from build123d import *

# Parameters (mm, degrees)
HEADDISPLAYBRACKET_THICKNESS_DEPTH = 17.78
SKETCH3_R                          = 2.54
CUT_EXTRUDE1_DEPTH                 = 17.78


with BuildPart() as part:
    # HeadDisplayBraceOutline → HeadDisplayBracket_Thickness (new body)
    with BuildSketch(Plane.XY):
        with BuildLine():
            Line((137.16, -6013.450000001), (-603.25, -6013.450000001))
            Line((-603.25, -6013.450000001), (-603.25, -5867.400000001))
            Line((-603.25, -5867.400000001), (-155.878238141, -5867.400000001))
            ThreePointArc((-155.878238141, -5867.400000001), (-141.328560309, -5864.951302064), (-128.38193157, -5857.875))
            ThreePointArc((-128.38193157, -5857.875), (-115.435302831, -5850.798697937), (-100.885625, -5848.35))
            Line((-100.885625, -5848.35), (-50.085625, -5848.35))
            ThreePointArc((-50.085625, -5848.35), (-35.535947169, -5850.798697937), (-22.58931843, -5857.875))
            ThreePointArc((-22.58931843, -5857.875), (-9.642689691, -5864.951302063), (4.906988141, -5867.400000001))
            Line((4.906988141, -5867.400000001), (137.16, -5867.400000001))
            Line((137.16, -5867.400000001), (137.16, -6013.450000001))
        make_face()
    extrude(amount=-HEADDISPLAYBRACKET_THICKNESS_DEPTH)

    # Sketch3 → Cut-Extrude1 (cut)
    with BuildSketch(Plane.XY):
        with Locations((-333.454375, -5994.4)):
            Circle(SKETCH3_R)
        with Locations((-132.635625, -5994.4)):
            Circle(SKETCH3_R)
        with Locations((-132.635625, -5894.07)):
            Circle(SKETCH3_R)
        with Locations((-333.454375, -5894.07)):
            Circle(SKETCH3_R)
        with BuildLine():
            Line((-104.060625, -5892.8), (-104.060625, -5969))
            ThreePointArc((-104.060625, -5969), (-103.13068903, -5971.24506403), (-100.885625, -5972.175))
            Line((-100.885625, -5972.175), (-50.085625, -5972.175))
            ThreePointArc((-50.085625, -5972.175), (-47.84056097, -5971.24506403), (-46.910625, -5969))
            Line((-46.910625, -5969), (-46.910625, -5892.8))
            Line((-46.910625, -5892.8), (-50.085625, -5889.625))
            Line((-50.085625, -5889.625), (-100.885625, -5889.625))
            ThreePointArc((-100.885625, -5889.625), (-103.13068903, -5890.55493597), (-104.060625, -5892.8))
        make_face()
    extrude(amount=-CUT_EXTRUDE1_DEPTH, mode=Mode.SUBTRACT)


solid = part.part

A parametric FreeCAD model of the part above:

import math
import FreeCAD as App
import Part
import Sketcher
Q = App.Units.Quantity

doc = App.newDocument("Part")
body = doc.addObject("PartDesign::Body", "Body")

# Sketch on XY plane
sketch1 = doc.addObject("Sketcher::SketchObject", "Sketch")
body.addObject(sketch1)
sketch1.AttachmentSupport = (doc.XY_Plane, [""])
sketch1.MapMode = "FlatFace"
sketch1.addGeometry([
    Part.LineSegment(App.Vector(-603, -6013, 0), App.Vector(137, -6013, 0)),  # 0
    Part.LineSegment(App.Vector(137, -6013, 0), App.Vector(137, -5867, 0)),  # 1
    Part.LineSegment(App.Vector(137, -5867, 0), App.Vector(5, -5867, 0)),  # 2
    Part.ArcOfCircle(Part.Circle(App.Vector(5, -5823, 0), App.Vector(0, 0, 1), 44), math.radians(-128), math.radians(-90)),  # 3
    Part.ArcOfCircle(Part.Circle(App.Vector(-50, -5893, 0), App.Vector(0, 0, 1), 44), math.radians(52), math.radians(90)),  # 4
    Part.LineSegment(App.Vector(-50, -5848, 0), App.Vector(-101, -5848, 0)),  # 5
    Part.ArcOfCircle(Part.Circle(App.Vector(-101, -5893, 0), App.Vector(0, 0, 1), 44), math.radians(90), math.radians(128)),  # 6
    Part.ArcOfCircle(Part.Circle(App.Vector(-156, -5823, 0), App.Vector(0, 0, 1), 44), math.radians(-90), math.radians(-52)),  # 7
    Part.LineSegment(App.Vector(-156, -5867, 0), App.Vector(-603, -5867, 0)),  # 8
    Part.LineSegment(App.Vector(-603, -5867, 0), App.Vector(-603, -6013, 0)),  # 9
], False)
sketch1.addConstraint([
    Sketcher.Constraint("Coincident", 0, 2, 1, 1),
    Sketcher.Constraint("Coincident", 1, 2, 2, 1),
    Sketcher.Constraint("Tangent", 2, 2, 3, 2),
    Sketcher.Constraint("Tangent", 3, 1, 4, 1),
    Sketcher.Constraint("Tangent", 4, 2, 5, 1),
    Sketcher.Constraint("Tangent", 5, 2, 6, 1),
    Sketcher.Constraint("Tangent", 6, 2, 7, 2),
    Sketcher.Constraint("Tangent", 7, 1, 8, 1),
    Sketcher.Constraint("Coincident", 8, 2, 9, 1),
    Sketcher.Constraint("Coincident", 9, 2, 0, 1),
    Sketcher.Constraint("Horizontal", 0),
    Sketcher.Constraint("Vertical", 1),
    Sketcher.Constraint("Horizontal", 2),
    Sketcher.Constraint("Horizontal", 5),
    Sketcher.Constraint("Horizontal", 8),
    Sketcher.Constraint("Vertical", 9),
    Sketcher.Constraint("Equal", 3, 4),
    Sketcher.Constraint("Equal", 4, 6),
    Sketcher.Constraint("Equal", 6, 7),
    Sketcher.Constraint("Horizontal", 3, 3, 7, 3),
    Sketcher.Constraint("DistanceX", 5, 2, 5, 1, Q("2 in")),
    Sketcher.Constraint("Radius", 3, Q("1.75 in")),
    Sketcher.Constraint("DistanceY", 4, 3, -1, 1, Q("232 in")),
    Sketcher.Constraint("DistanceY", 1, 2, -1, 1, Q("231 in")),
    Sketcher.Constraint("DistanceX", 0, 1, 0, 2, Q("29.15 in")),
    Sketcher.Constraint("DistanceY", 1, 1, 1, 2, Q("5.75 in")),
    Sketcher.Constraint("DistanceX", -1, 1, 0, 2, Q("5.4 in")),
    Sketcher.Constraint("DistanceX", 2, 2, 2, 1, Q("132.253012 mm")),
])
pad1 = doc.addObject("PartDesign::Pad", "Pad")
body.addObject(pad1)
pad1.Profile = sketch1
pad1.Length = Q("0.7 in")
pad1.Reversed = True

# Sketch on XY plane
sketch2 = doc.addObject("Sketcher::SketchObject", "Sketch001")
body.addObject(sketch2)
sketch2.AttachmentSupport = (doc.XY_Plane, [""])
sketch2.MapMode = "FlatFace"
sketch2.addGeometry([
    Part.Circle(App.Vector(-333.5, -5994.4, 0), App.Vector(0, 0, 1), 2.5),  # 0
    Part.Circle(App.Vector(-132.6, -5994.4, 0), App.Vector(0, 0, 1), 2.5),  # 1
    Part.Circle(App.Vector(-132.6, -5894.1, 0), App.Vector(0, 0, 1), 2.5),  # 2
    Part.Circle(App.Vector(-333.5, -5894.1, 0), App.Vector(0, 0, 1), 2.5),  # 3
    Part.LineSegment(App.Vector(-104.1, -5892.8, 0), App.Vector(-104.1, -5969, 0)),  # 4
    Part.ArcOfCircle(Part.Circle(App.Vector(-100.9, -5969, 0), App.Vector(0, 0, 1), 3.2), math.radians(-180), math.radians(-90)),  # 5
    Part.LineSegment(App.Vector(-100.9, -5972.2, 0), App.Vector(-50.1, -5972.2, 0)),  # 6
    Part.ArcOfCircle(Part.Circle(App.Vector(-50.1, -5969, 0), App.Vector(0, 0, 1), 3.2), math.radians(-90), math.radians(0)),  # 7
    Part.LineSegment(App.Vector(-46.9, -5969, 0), App.Vector(-46.9, -5892.8, 0)),  # 8
    Part.LineSegment(App.Vector(-46.9, -5892.8, 0), App.Vector(-50.1, -5889.6, 0)),  # 9
    Part.LineSegment(App.Vector(-50.1, -5889.6, 0), App.Vector(-100.9, -5889.6, 0)),  # 10
    Part.ArcOfCircle(Part.Circle(App.Vector(-100.9, -5892.8, 0), App.Vector(0, 0, 1), 3.2), math.radians(90), math.radians(180)),  # 11
], False)
sketch2.addConstraint([
    Sketcher.Constraint("Tangent", 4, 2, 5, 1),
    Sketcher.Constraint("Tangent", 5, 2, 6, 1),
    Sketcher.Constraint("Tangent", 6, 2, 7, 1),
    Sketcher.Constraint("Tangent", 7, 2, 8, 1),
    Sketcher.Constraint("Coincident", 8, 2, 9, 1),
    Sketcher.Constraint("Coincident", 9, 2, 10, 1),
    Sketcher.Constraint("Tangent", 10, 2, 11, 1),
    Sketcher.Constraint("Tangent", 11, 2, 4, 1),
    Sketcher.Constraint("Vertical", 4),
    Sketcher.Constraint("Horizontal", 6),
    Sketcher.Constraint("Vertical", 8),
    Sketcher.Constraint("Horizontal", 10),
    Sketcher.Constraint("Equal", 0, 1),
    Sketcher.Constraint("Equal", 1, 2),
    Sketcher.Constraint("Equal", 2, 3),
    Sketcher.Constraint("Equal", 5, 7),
    Sketcher.Constraint("Equal", 7, 11),
    Sketcher.Constraint("Horizontal", 0, 3, 1, 3),
    Sketcher.Constraint("Horizontal", 2, 3, 3, 3),
    Sketcher.Constraint("Horizontal", 11, 3, 8, 2),
    Sketcher.Constraint("Vertical", 1, 3, 2, 3),
    Sketcher.Constraint("Vertical", 0, 3, 3, 3),
    Sketcher.Constraint("Vertical", 6, 2, 9, 2),
    Sketcher.Constraint("Diameter", 0, Q("0.2 in")),
    Sketcher.Constraint("DistanceX", 6, 1, 6, 2, Q("2 in")),
    Sketcher.Constraint("DistanceY", 4, 2, 4, 1, Q("3 in")),
    Sketcher.Constraint("DistanceY", 0, 3, -1, 1, Q("236 in")),
    Sketcher.Constraint("DistanceY", 5, 3, -1, 1, Q("235 in")),
    Sketcher.Constraint("Radius", 5, Q("0.125 in")),
    Sketcher.Constraint("DistanceY", 2, 3, -1, 1, Q("232.05 in")),
    Sketcher.Constraint("DistanceX", 1, 3, 5, 3, Q("1.25 in")),
    Sketcher.Constraint("DistanceX", 0, 3, 1, 3, Q("7.90625 in")),
    Sketcher.Constraint("DistanceX", 0, 3, -1, 1, Q("333.454375 mm")),
])
pocket1 = doc.addObject("PartDesign::Pocket", "Pocket")
body.addObject(pocket1)
pocket1.Profile = sketch2
pocket1.Length = Q("0.7 in")

doc.recompute()
